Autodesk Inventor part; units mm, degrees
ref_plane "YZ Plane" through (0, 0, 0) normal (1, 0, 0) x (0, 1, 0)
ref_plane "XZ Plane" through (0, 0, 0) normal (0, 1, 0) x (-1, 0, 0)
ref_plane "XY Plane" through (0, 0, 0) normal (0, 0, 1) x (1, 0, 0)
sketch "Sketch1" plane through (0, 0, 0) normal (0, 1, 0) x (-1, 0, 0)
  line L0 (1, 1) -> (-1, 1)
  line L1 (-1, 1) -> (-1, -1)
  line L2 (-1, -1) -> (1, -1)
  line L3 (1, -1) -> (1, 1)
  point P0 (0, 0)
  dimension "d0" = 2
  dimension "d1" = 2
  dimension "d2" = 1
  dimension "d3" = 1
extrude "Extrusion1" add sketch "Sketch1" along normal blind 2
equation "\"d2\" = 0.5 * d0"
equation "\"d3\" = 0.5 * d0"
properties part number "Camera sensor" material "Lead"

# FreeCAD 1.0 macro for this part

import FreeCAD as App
import Part
import Sketcher
Q = App.Units.Quantity

doc = App.newDocument("Part")
body = doc.addObject("PartDesign::Body", "Body")

# Sketch on XZ plane
sketch1 = body.newObject("Sketcher::SketchObject", "Sketch")
sketch1.AttachmentSupport = (doc.getObject("XZ_Plane"), [""])
sketch1.MapMode = "FlatFace"
sketch1.addGeometry([
    Part.LineSegment(App.Vector(-1, -1, 0), App.Vector(-1, 1, 0)),
    Part.LineSegment(App.Vector(-1, 1, 0), App.Vector(1, 1, 0)),
    Part.LineSegment(App.Vector(1, 1, 0), App.Vector(1, -1, 0)),
    Part.LineSegment(App.Vector(1, -1, 0), App.Vector(-1, -1, 0)),
], False)
sketch1.addConstraint([
    Sketcher.Constraint("Coincident", 0, 2, 1, 1),
    Sketcher.Constraint("Coincident", 1, 2, 2, 1),
    Sketcher.Constraint("Coincident", 2, 2, 3, 1),
    Sketcher.Constraint("Coincident", 3, 2, 0, 1),
    Sketcher.Constraint("Vertical", 0),
    Sketcher.Constraint("Horizontal", 1),
    Sketcher.Constraint("Vertical", 2),
    Sketcher.Constraint("Horizontal", 3),
    Sketcher.Constraint("Symmetric", 0, 2, 2, 2, -1, 1),
    Sketcher.Constraint("Equal", 3, 0),
    Sketcher.Constraint("DistanceX", 1, 1, 1, 2, Q("2 mm")),
])
pad1 = body.newObject("PartDesign::Pad", "Pad")
pad1.Profile = sketch1
pad1.Length = 2
pad1.Reversed = True

doc.recompute()
